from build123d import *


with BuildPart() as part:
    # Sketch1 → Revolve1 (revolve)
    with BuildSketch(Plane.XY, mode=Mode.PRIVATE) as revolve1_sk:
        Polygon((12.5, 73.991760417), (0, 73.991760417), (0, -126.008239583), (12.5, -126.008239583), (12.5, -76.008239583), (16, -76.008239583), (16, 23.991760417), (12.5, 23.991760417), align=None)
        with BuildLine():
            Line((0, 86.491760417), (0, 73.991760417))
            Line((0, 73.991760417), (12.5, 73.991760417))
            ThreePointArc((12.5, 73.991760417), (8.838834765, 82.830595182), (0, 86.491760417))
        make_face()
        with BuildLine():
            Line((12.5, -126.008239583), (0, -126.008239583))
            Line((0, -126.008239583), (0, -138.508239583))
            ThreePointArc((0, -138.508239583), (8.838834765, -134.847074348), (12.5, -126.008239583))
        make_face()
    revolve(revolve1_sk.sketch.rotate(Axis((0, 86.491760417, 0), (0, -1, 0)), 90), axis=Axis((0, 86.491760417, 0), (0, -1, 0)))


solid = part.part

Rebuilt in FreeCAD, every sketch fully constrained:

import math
import FreeCAD as App
import Part
import Sketcher
from FreeCAD import Vector
Q = App.Units.Quantity

doc = App.newDocument("Part")
params = doc.addObject("Spreadsheet::Sheet", "Params")
for row, (alias, value) in enumerate([
    ("sketch1_radius", "12.5 mm"),
    ("sketch1_height", "50 mm"),
    ("sketch1_height2", "100 mm"),
    ("sketch1_width", "3.5 mm"),
    ("revolution_angle", "360 deg"),
], start=1):
    params.set(f"A{row}", alias)
    params.set(f"B{row}", "=" + value)
    params.setAlias(f"B{row}", alias)

body = doc.addObject("PartDesign::Body", "Body")

sketch1 = body.newObject("Sketcher::SketchObject", "Sketch")
sketch1.AttachmentSupport = (doc.getObject("XY_Plane"), [""])
sketch1.MapMode = "FlatFace"
sketch1.addGeometry([
    Part.LineSegment(Vector(12.5, -126.00824, 0), Vector(12.5, -76.00824, 0)),
    Part.LineSegment(Vector(12.5, -76.00824, 0), Vector(16, -76.00824, 0)),
    Part.LineSegment(Vector(16, -76.00824, 0), Vector(16, 23.99176, 0)),
    Part.LineSegment(Vector(16, 23.99176, 0), Vector(12.5, 23.99176, 0)),
    Part.LineSegment(Vector(12.5, 23.99176, 0), Vector(12.5, 73.99176, 0)),
    Part.ArcOfCircle(Part.Circle(Vector(0, 73.99176, 0), Vector(0, 0, 1), 12.5), math.radians(0), math.radians(90)),
    Part.LineSegment(Vector(0, 86.49176, 0), Vector(0, -138.50824, 0)),
    Part.ArcOfCircle(Part.Circle(Vector(0, -126.00824, 0), Vector(0, 0, 1), 12.5), math.radians(-90), math.radians(0)),
], False)
sketch1.addConstraint([
    Sketcher.Constraint("Coincident", 0, 2, 1, 1),
    Sketcher.Constraint("Coincident", 1, 2, 2, 1),
    Sketcher.Constraint("Coincident", 2, 2, 3, 1),
    Sketcher.Constraint("Coincident", 3, 2, 4, 1),
    Sketcher.Constraint("Tangent", 4, 2, 5, 1),
    Sketcher.Constraint("Coincident", 5, 2, 6, 1),
    Sketcher.Constraint("Coincident", 6, 2, 7, 1),
    Sketcher.Constraint("Tangent", 7, 2, 0, 1),
    Sketcher.Constraint("Vertical", 0),
    Sketcher.Constraint("Horizontal", 1),
    Sketcher.Constraint("Vertical", 2),
    Sketcher.Constraint("Horizontal", 3),
    Sketcher.Constraint("Vertical", 4),
    Sketcher.Constraint("Vertical", 6),
    Sketcher.Constraint("Equal", 5, 7),
    Sketcher.Constraint("PointOnObject", 5, 3, -2),
    Sketcher.Constraint("PointOnObject", 7, 3, -2),
    Sketcher.Constraint("PointOnObject", 5, 2, -2),
    Sketcher.Constraint("Equal", 0, 4),
    Sketcher.Constraint("Radius", 5, Q("12.5 mm")),
    Sketcher.Constraint("DistanceY", 0, 1, 0, 2, Q("50 mm")),
    Sketcher.Constraint("DistanceY", 2, 1, 2, 2, Q("100 mm")),
    Sketcher.Constraint("DistanceX", 1, 1, 1, 2, Q("3.5 mm")),
    Sketcher.Constraint("DistanceY", -1, 1, 5, 3, Q("73.99176 mm")),
])
sketch1.setExpression("Constraints[19]", "Params.sketch1_radius")
sketch1.setExpression("Constraints[20]", "Params.sketch1_height")
sketch1.setExpression("Constraints[21]", "Params.sketch1_height2")
sketch1.setExpression("Constraints[22]", "Params.sketch1_width")
revolution = body.newObject("PartDesign::Revolution", "Revolution")
revolution.Profile = sketch1
revolution.ReferenceAxis = (sketch1, ["V_Axis"])
revolution.setExpression("Angle", "Params.revolution_angle")

doc.recompute()
